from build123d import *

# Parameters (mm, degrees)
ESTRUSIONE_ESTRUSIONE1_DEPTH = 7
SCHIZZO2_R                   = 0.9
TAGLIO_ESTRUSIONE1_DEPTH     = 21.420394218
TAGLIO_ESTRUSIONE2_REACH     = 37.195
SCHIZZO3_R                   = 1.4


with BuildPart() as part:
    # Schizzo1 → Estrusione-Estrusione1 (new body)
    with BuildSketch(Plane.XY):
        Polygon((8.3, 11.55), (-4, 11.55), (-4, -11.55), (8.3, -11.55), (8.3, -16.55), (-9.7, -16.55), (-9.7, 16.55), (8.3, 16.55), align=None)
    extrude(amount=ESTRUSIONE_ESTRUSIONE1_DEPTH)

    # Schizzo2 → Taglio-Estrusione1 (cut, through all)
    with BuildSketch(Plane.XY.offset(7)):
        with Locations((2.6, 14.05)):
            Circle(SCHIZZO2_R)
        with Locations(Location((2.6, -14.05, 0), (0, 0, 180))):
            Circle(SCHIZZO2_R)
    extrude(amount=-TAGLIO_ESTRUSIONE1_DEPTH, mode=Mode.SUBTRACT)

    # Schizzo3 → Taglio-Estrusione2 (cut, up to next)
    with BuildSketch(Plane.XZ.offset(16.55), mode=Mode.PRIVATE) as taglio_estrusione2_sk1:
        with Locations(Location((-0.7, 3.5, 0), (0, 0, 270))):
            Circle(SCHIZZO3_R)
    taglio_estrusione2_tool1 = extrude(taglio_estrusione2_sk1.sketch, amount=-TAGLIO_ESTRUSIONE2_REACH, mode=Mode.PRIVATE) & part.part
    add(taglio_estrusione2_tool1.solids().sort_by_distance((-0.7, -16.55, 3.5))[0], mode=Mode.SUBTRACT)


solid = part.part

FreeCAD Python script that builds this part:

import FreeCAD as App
import Part
import Sketcher

doc = App.newDocument("Part")
body = doc.addObject("PartDesign::Body", "Body")

# Sketch on XY plane
sketch1 = body.newObject("Sketcher::SketchObject", "Sketch")
sketch1.AttachmentSupport = (doc.getObject("XY_Plane"), [""])
sketch1.MapMode = "FlatFace"
sketch1.addGeometry(Part.LineSegment(App.Vector(-4, 12, 0), App.Vector(8, 12, 0)), False)
sketch1.addGeometry(Part.LineSegment(App.Vector(8, 12, 0), App.Vector(8, 17, 0)), False)
sketch1.addGeometry(Part.LineSegment(App.Vector(8, 17, 0), App.Vector(-10, 17, 0)), False)
sketch1.addGeometry(Part.LineSegment(App.Vector(-10, 17, 0), App.Vector(-10, -17, 0)), False)
sketch1.addGeometry(Part.LineSegment(App.Vector(-10, -17, 0), App.Vector(8, -17, 0)), False)
sketch1.addGeometry(Part.LineSegment(App.Vector(8, -17, 0), App.Vector(8, -12, 0)), False)
sketch1.addGeometry(Part.LineSegment(App.Vector(8, -12, 0), App.Vector(-4, -12, 0)), False)
sketch1.addGeometry(Part.LineSegment(App.Vector(-4, -12, 0), App.Vector(-4, 12, 0)), False)
sketch1.addConstraint(Sketcher.Constraint("Coincident", 0, 2, 1, 1))
sketch1.addConstraint(Sketcher.Constraint("Coincident", 1, 2, 2, 1))
sketch1.addConstraint(Sketcher.Constraint("Coincident", 2, 2, 3, 1))
sketch1.addConstraint(Sketcher.Constraint("Coincident", 3, 2, 4, 1))
sketch1.addConstraint(Sketcher.Constraint("Coincident", 4, 2, 5, 1))
sketch1.addConstraint(Sketcher.Constraint("Coincident", 5, 2, 6, 1))
sketch1.addConstraint(Sketcher.Constraint("Coincident", 6, 2, 7, 1))
sketch1.addConstraint(Sketcher.Constraint("Coincident", 7, 2, 0, 1))
sketch1.addConstraint(Sketcher.Constraint("Horizontal", 0))
sketch1.addConstraint(Sketcher.Constraint("Vertical", 1))
sketch1.addConstraint(Sketcher.Constraint("Horizontal", 2))
sketch1.addConstraint(Sketcher.Constraint("Vertical", 3))
sketch1.addConstraint(Sketcher.Constraint("Horizontal", 4))
sketch1.addConstraint(Sketcher.Constraint("Vertical", 5))
sketch1.addConstraint(Sketcher.Constraint("Horizontal", 6))
sketch1.addConstraint(Sketcher.Constraint("Vertical", 7))
sketch1.addConstraint(Sketcher.Constraint("Symmetric", 1, 2, 4, 2, -1))
sketch1.addConstraint(Sketcher.Constraint("Equal", 1, 5))
sketch1.addConstraint(Sketcher.Constraint("DistanceX", 2, 2, 2, 1, 18.0))
sketch1.addConstraint(Sketcher.Constraint("DistanceY", 1, 1, 1, 2, 5.0))
sketch1.addConstraint(Sketcher.Constraint("DistanceX", 0, 1, 0, 2, 12.3))
sketch1.addConstraint(Sketcher.Constraint("DistanceY", 3, 2, 3, 1, 33.1))
sketch1.addConstraint(Sketcher.Constraint("DistanceX", 6, 2, -1, 1, 4.0))
pad1 = body.newObject("PartDesign::Pad", "Pad")
pad1.Profile = sketch1
pad1.Length = 7

# Sketch on XY plane
sketch2 = body.newObject("Sketcher::SketchObject", "Sketch001")
sketch2.AttachmentSupport = (doc.getObject("XY_Plane"), [""])
sketch2.MapMode = "FlatFace"
sketch2.AttachmentOffset = App.Placement(App.Vector(0, 0, 7), App.Rotation())
sketch2.addGeometry(Part.Circle(App.Vector(2.6, 14.1, 0), App.Vector(0, 0, 1), 0.9), False)
sketch2.addGeometry(Part.Circle(App.Vector(2.6, -14.1, 0), App.Vector(0, 0, 1), 0.9), False)
sketch2.addConstraint(Sketcher.Constraint("Equal", 0, 1))
sketch2.addConstraint(Sketcher.Constraint("Symmetric", 0, 3, 1, 3, -1))
sketch2.addConstraint(Sketcher.Constraint("Diameter", 0, 1.8))
sketch2.addConstraint(Sketcher.Constraint("DistanceX", -1, 1, 0, 3, 2.6))
sketch2.addConstraint(Sketcher.Constraint("DistanceY", 1, 3, 0, 3, 28.1))
pocket1 = body.newObject("PartDesign::Pocket", "Pocket")
pocket1.Profile = sketch2
pocket1.Type = "ThroughAll"

# Sketch on XZ plane
sketch3 = body.newObject("Sketcher::SketchObject", "Sketch002")
sketch3.AttachmentSupport = (doc.getObject("XZ_Plane"), [""])
sketch3.MapMode = "FlatFace"
sketch3.AttachmentOffset = App.Placement(App.Vector(0, 0, 16.55), App.Rotation())
sketch3.addGeometry(Part.Circle(App.Vector(-0.7, 3.5, 0), App.Vector(0, 0, 1), 1.4), False)
sketch3.addConstraint(Sketcher.Constraint("Diameter", 0, 2.8))
sketch3.addConstraint(Sketcher.Constraint("DistanceX", 0, 3, -1, 1, 0.7))
sketch3.addConstraint(Sketcher.Constraint("DistanceY", -1, 1, 0, 3, 3.5))
pocket2 = body.newObject("PartDesign::Pocket", "Pocket001")
pocket2.Profile = sketch3
pocket2.Type = "UpToFirst"

doc.recompute()
